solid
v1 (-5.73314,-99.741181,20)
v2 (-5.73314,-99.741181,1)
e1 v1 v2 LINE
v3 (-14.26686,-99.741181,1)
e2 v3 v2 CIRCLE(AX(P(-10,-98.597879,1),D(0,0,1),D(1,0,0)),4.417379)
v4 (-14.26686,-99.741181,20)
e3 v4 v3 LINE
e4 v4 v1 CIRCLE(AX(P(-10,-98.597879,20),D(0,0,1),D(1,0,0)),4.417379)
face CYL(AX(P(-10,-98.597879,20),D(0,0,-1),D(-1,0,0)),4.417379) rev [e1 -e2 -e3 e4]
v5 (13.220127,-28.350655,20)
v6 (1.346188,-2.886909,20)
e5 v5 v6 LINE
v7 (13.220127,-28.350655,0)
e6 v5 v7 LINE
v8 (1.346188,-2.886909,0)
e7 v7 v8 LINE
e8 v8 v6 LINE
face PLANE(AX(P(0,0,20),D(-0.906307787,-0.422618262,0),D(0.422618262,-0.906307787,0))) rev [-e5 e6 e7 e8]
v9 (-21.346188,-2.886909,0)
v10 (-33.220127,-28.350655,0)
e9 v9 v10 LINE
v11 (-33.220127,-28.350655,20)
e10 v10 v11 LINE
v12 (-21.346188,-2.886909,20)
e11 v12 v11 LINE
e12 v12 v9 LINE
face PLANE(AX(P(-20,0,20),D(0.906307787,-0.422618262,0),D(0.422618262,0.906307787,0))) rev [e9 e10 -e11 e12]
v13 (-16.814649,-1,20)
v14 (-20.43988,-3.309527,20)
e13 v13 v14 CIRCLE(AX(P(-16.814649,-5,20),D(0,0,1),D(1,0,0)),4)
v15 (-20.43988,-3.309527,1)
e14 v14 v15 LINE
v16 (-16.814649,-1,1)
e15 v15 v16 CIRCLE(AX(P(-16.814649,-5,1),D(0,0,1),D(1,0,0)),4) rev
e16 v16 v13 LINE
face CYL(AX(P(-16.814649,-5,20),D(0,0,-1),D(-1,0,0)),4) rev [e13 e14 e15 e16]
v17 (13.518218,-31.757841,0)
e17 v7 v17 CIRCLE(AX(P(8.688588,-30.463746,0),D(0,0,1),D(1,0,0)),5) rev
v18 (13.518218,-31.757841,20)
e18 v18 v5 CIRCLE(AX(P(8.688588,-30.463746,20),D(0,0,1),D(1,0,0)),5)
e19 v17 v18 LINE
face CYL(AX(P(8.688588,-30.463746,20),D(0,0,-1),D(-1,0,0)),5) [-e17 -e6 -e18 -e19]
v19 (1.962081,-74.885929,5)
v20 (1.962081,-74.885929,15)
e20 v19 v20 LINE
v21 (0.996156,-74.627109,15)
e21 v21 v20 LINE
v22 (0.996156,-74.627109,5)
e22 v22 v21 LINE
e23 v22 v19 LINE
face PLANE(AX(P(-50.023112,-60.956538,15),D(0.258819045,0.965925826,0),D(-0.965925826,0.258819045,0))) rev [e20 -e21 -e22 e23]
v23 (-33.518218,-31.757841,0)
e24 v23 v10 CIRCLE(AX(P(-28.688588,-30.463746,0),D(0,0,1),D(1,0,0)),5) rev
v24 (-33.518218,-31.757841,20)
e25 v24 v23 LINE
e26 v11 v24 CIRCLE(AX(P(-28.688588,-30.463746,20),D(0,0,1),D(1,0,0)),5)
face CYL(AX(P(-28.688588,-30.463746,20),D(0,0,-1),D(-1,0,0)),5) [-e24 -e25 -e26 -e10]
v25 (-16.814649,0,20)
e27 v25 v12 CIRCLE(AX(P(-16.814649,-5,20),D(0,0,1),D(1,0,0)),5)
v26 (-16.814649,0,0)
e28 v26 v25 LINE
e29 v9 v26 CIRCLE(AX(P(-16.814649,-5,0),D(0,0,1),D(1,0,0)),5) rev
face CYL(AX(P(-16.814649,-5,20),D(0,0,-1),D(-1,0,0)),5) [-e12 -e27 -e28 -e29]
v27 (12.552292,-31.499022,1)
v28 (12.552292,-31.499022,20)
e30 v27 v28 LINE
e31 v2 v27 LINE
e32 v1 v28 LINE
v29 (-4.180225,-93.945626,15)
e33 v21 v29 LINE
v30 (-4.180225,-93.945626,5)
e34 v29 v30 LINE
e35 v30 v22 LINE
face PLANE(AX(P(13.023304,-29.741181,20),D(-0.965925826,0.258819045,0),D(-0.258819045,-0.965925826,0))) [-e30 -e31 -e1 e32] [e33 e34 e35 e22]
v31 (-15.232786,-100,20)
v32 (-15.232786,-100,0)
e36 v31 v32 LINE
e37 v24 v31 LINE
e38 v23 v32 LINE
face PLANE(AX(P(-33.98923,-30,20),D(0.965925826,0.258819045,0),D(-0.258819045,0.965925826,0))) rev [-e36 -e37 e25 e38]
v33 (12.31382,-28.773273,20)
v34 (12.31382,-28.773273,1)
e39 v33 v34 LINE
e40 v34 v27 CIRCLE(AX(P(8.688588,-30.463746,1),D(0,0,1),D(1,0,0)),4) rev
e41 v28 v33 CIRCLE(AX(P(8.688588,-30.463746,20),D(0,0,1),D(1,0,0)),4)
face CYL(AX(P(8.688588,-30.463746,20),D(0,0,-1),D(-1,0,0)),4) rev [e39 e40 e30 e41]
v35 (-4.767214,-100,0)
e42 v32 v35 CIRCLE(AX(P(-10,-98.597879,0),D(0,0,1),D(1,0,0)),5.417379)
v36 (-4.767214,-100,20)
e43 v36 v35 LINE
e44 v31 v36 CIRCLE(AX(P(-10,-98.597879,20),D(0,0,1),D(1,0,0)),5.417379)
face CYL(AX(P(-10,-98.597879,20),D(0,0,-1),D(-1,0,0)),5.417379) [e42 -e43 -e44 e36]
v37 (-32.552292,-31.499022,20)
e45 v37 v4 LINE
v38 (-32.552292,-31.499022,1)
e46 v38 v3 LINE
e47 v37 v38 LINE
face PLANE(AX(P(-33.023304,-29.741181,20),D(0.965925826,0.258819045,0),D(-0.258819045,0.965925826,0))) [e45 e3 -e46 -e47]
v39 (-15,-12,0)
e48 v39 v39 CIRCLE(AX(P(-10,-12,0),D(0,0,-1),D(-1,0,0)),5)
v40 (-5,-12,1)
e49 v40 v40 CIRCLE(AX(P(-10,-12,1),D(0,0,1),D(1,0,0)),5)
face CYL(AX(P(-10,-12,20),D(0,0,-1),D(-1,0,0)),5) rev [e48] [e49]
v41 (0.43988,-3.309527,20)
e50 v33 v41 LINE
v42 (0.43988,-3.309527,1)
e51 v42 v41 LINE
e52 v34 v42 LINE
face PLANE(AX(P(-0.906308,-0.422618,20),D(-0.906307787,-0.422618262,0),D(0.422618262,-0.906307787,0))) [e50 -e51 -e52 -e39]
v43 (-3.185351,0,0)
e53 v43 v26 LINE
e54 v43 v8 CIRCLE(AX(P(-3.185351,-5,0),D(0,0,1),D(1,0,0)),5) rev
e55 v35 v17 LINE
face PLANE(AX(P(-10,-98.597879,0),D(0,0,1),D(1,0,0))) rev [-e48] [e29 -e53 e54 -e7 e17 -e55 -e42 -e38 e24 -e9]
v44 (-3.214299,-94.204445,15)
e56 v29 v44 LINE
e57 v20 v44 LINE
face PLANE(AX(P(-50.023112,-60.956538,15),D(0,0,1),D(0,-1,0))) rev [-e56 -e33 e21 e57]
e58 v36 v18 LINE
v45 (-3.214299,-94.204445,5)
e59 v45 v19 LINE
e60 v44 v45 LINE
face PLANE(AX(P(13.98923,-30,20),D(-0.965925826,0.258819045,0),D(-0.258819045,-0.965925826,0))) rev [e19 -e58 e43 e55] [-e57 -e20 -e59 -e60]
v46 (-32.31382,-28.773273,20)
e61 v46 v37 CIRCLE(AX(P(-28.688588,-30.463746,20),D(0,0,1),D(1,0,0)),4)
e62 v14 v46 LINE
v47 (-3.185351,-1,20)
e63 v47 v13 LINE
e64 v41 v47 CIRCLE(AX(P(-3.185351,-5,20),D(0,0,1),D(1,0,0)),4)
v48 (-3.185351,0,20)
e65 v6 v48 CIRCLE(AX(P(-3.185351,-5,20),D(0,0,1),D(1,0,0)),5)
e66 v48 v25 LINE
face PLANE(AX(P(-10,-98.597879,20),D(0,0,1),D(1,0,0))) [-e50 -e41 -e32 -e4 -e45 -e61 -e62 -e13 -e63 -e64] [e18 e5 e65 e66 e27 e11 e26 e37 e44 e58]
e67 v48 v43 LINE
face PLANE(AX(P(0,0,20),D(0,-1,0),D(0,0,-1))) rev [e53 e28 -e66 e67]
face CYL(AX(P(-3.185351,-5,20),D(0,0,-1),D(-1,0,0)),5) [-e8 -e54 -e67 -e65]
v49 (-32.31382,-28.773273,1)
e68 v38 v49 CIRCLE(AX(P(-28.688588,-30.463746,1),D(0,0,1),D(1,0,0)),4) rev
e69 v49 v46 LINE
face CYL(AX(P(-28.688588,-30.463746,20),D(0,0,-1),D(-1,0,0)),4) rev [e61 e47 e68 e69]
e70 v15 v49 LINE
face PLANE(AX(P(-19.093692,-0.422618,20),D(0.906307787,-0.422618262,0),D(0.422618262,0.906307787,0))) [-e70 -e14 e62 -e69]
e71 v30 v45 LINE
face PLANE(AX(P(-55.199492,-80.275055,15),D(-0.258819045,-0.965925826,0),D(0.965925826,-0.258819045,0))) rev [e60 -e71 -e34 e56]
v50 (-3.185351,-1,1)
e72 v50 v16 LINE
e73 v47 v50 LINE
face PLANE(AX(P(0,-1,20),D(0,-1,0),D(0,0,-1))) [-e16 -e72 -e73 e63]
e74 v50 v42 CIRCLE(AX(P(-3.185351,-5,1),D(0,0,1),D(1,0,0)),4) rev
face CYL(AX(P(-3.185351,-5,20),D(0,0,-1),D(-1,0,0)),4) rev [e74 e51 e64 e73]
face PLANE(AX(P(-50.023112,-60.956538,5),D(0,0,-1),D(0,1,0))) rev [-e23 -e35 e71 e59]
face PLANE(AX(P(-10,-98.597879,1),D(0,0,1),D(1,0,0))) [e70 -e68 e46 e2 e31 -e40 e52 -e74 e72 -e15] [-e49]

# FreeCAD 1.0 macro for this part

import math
import FreeCAD as App
import Part
import Sketcher
Q = App.Units.Quantity


def edges_at(feature, points):
    """Names of the edges that pass closest to the given points."""
    edges = feature.Shape.Edges
    near = lambda p: min(range(len(edges)), key=lambda i: edges[i].distToShape(Part.Vertex(*p))[0])
    return sorted({f"Edge{near(p) + 1}" for p in points})


def faces_at(feature, points):
    """Names of the faces that lie closest to the given points."""
    faces = feature.Shape.Faces
    near = lambda p: min(range(len(faces)), key=lambda i: faces[i].distToShape(Part.Vertex(*p))[0])
    return sorted({f"Face{near(p) + 1}" for p in points})

doc = App.newDocument("Part")
body = doc.addObject("PartDesign::Body", "Body")

# Sketch on XY plane
sketch1 = doc.addObject("Sketcher::SketchObject", "Sketch")
body.addObject(sketch1)
sketch1.AttachmentSupport = (doc.XY_Plane, [""])
sketch1.MapMode = "FlatFace"
sketch1.addGeometry(Part.LineSegment(App.Vector(0, 0, 0), App.Vector(-20, 0, 0)), False)
sketch1.addGeometry(Part.LineSegment(App.Vector(-20, 0, 0), App.Vector(-33.98923, -30, 0)), False)
sketch1.addGeometry(Part.LineSegment(App.Vector(-33.98923, -30, 0), App.Vector(-15.232786, -100, 0)), False)
sketch1.addGeometry(Part.ArcOfCircle(Part.Circle(App.Vector(-10, -98.597879, 0), App.Vector(0, 0, 1), 5.417379), math.radians(-165), math.radians(-15)), False)
sketch1.addGeometry(Part.LineSegment(App.Vector(-4.767214, -100, 0), App.Vector(13.98923, -30, 0)), False)
sketch1.addGeometry(Part.LineSegment(App.Vector(13.98923, -30, 0), App.Vector(0, 0, 0)), False)
sketch1.addConstraint(Sketcher.Constraint("Coincident", 0, 2, 1, 1))
sketch1.addConstraint(Sketcher.Constraint("Coincident", 1, 2, 2, 1))
sketch1.addConstraint(Sketcher.Constraint("Tangent", 2, 2, 3, 1))
sketch1.addConstraint(Sketcher.Constraint("Tangent", 3, 2, 4, 1))
sketch1.addConstraint(Sketcher.Constraint("Coincident", 4, 2, 5, 1))
sketch1.addConstraint(Sketcher.Constraint("Coincident", 5, 2, 0, 1))
sketch1.addConstraint(Sketcher.Constraint("Horizontal", 0))
sketch1.addConstraint(Sketcher.Constraint("Coincident", 5, 2, -1, 1))
sketch1.addConstraint(Sketcher.Constraint("Horizontal", 2, 2, 3, 2))
sketch1.addConstraint(Sketcher.Constraint("Horizontal", 1, 2, 4, 2))
sketch1.addConstraint(Sketcher.Constraint("Equal", 1, 5))
sketch1.addConstraint(Sketcher.Constraint("DistanceX", 0, 2, 0, 1, Q("20 mm")))
sketch1.addConstraint(Sketcher.Constraint("Angle", 1, Q("-115 deg")))
sketch1.addConstraint(Sketcher.Constraint("Angle", 2, Q("-75 deg")))
sketch1.addConstraint(Sketcher.Constraint("DistanceY", 1, 2, -1, 1, Q("30 mm")))
sketch1.addConstraint(Sketcher.Constraint("DistanceY", 2, 2, -1, 1, Q("100 mm")))
pad1 = doc.addObject("PartDesign::Pad", "Pad")
body.addObject(pad1)
pad1.Profile = sketch1
pad1.Length = 20
doc.recompute()

fillet = doc.addObject("PartDesign::Fillet", "Fillet")
body.addObject(fillet)
fillet.Base = (pad1, edges_at(pad1, [
    (13.989, -30, 10),
    (-33.989, -30, 10),
    (-20, 0, 10),
    (0, 0, 10),
]))
fillet.Radius = 5
doc.recompute()

thickness = doc.addObject("PartDesign::Thickness", "Thickness")
body.addObject(thickness)
thickness.Base = (fillet, faces_at(fillet, [(-10, -52.008, 20)]))
thickness.Value = 1
thickness.Reversed = True
thickness.Join = "Intersection"

# Sketch on XY plane
sketch2 = doc.addObject("Sketcher::SketchObject", "Sketch001")
body.addObject(sketch2)
sketch2.AttachmentSupport = (doc.XY_Plane, [""])
sketch2.MapMode = "FlatFace"
sketch2.addGeometry(Part.Circle(App.Vector(-10, -12, 0), App.Vector(0, 0, 1), 5), False)
sketch2.addConstraint(Sketcher.Constraint("Diameter", 0, Q("10 mm")))
sketch2.addConstraint(Sketcher.Constraint("DistanceX", 0, 3, -1, 1, Q("10 mm")))
sketch2.addConstraint(Sketcher.Constraint("DistanceY", 0, 3, -1, 1, Q("12 mm")))
pocket1 = doc.addObject("PartDesign::Pocket", "Pocket")
body.addObject(pocket1)
pocket1.Profile = sketch2
pocket1.Length = 20
pocket1.Reversed = True

# Sketch on an angled plane
sketch3 = doc.addObject("Sketcher::SketchObject", "Sketch002")
body.addObject(sketch3)
sketch3.Placement = App.Placement(App.Vector(20.552129, -5.506926, 0), App.Rotation(App.Vector(0, 0, -1), App.Vector(0.258819045, 0.965925826, 0), App.Vector(0.965925826, -0.258819045, 0), "ZXY"))
sketch3.addGeometry(Part.LineSegment(App.Vector(-15, -71.826428, 0), App.Vector(-15, -91.826428, 0)), False)
sketch3.addGeometry(Part.LineSegment(App.Vector(-15, -91.826428, 0), App.Vector(-5, -91.826428, 0)), False)
sketch3.addGeometry(Part.LineSegment(App.Vector(-5, -91.826428, 0), App.Vector(-5, -71.826428, 0)), False)
sketch3.addGeometry(Part.LineSegment(App.Vector(-5, -71.826428, 0), App.Vector(-15, -71.826428, 0)), False)
sketch3.addConstraint(Sketcher.Constraint("Coincident", 0, 2, 1, 1))
sketch3.addConstraint(Sketcher.Constraint("Coincident", 1, 2, 2, 1))
sketch3.addConstraint(Sketcher.Constraint("Coincident", 2, 2, 3, 1))
sketch3.addConstraint(Sketcher.Constraint("Coincident", 3, 2, 0, 1))
sketch3.addConstraint(Sketcher.Constraint("Vertical", 0))
sketch3.addConstraint(Sketcher.Constraint("Horizontal", 1))
sketch3.addConstraint(Sketcher.Constraint("Vertical", 2))
sketch3.addConstraint(Sketcher.Constraint("Horizontal", 3))
sketch3.addConstraint(Sketcher.Constraint("DistanceX", 1, 1, 1, 2, Q("10 mm")))
sketch3.addConstraint(Sketcher.Constraint("DistanceY", 0, 2, 0, 1, Q("20 mm")))
sketch3.addConstraint(Sketcher.Constraint("DistanceX", 0, 2, -1, 1, Q("15 mm")))
sketch3.addConstraint(Sketcher.Constraint("DistanceY", 0, 2, -1, 1, Q("91.826428 mm")))
pocket2 = doc.addObject("PartDesign::Pocket", "Pocket001")
body.addObject(pocket2)
pocket2.Profile = sketch3
pocket2.Type = "UpToFirst"

doc.recompute()
